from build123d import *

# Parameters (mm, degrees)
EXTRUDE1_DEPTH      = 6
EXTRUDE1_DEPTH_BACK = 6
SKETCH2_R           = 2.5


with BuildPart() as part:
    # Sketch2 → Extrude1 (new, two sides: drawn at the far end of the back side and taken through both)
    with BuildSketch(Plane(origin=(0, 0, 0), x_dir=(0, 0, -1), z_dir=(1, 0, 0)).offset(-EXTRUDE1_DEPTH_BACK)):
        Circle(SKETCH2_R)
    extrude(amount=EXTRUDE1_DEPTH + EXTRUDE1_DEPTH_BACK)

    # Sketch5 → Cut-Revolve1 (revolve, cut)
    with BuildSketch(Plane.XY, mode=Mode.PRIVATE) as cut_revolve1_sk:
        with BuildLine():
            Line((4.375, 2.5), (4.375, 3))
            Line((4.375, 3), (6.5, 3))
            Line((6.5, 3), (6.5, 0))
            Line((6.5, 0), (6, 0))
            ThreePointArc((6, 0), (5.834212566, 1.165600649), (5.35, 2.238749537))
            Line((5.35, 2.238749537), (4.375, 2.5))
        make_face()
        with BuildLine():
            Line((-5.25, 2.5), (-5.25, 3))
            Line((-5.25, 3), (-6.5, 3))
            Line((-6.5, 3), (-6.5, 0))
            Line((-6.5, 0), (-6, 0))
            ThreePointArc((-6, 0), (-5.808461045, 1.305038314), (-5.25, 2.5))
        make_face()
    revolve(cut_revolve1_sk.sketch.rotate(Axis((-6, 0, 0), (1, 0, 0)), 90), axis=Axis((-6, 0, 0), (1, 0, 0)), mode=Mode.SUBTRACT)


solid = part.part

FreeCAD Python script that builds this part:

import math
import FreeCAD as App
import Part
import Sketcher

V = App.Vector
Q = App.Units.Quantity

doc = App.newDocument("Part")
body = doc.addObject("PartDesign::Body", "Body")

# Sketch on YZ plane
sketch1 = body.newObject("Sketcher::SketchObject", "Sketch")
sketch1.AttachmentSupport = (doc.getObject("YZ_Plane"), [""])
sketch1.MapMode = "FlatFace"
sketch1.addGeometry(Part.Circle(V(0, 0, 0), V(0, 0, 1), 2.5), False)
sketch1.addConstraint([
    Sketcher.Constraint("Coincident", 0, 3, -1, 1),
    Sketcher.Constraint("Diameter", 0, Q("5 mm")),
])
pad1 = body.newObject("PartDesign::Pad", "Pad")
pad1.Profile = sketch1
pad1.Type = "TwoLengths"
pad1.Length = 6
pad1.Length2 = 6

# Sketch on XY plane
sketch2 = body.newObject("Sketcher::SketchObject", "Sketch001")
sketch2.AttachmentSupport = (doc.getObject("XY_Plane"), [""])
sketch2.MapMode = "FlatFace"
sketch2.addGeometry([
    Part.LineSegment(V(4.4, 3, 0), V(4.4, 2.5, 0)),  # 0
    Part.LineSegment(V(4.4, 2.5, 0), V(5.3, 2.2, 0)),  # 1
    Part.ArcOfCircle(Part.Circle(V(1.8, 0, 0), V(0, 0, 1), 4.2), math.radians(0), math.radians(32)),  # 2
    Part.LineSegment(V(6, 0, 0), V(6.5, 0, 0)),  # 3
    Part.LineSegment(V(6.5, 0, 0), V(6.5, 3, 0)),  # 4
    Part.LineSegment(V(6.5, 3, 0), V(4.4, 3, 0)),  # 5
    Part.LineSegment(V(-5.2, 2.5, 0), V(-5.2, 3, 0)),  # 6
    Part.LineSegment(V(-5.2, 3, 0), V(-6.5, 3, 0)),  # 7
    Part.LineSegment(V(-6.5, 3, 0), V(-6.5, 0, 0)),  # 8
    Part.LineSegment(V(-6.5, 0, 0), V(-6, 0, 0)),  # 9
    Part.ArcOfCircle(Part.Circle(V(-1.5, 0, 0), V(0, 0, 1), 4.5), math.radians(147), math.radians(180)),  # 10
], False)
sketch2.addConstraint([
    Sketcher.Constraint("Coincident", 0, 2, 1, 1),
    Sketcher.Constraint("Coincident", 1, 2, 2, 2),
    Sketcher.Constraint("Coincident", 2, 1, 3, 1),
    Sketcher.Constraint("Coincident", 3, 2, 4, 1),
    Sketcher.Constraint("Coincident", 4, 2, 5, 1),
    Sketcher.Constraint("Coincident", 5, 2, 0, 1),
    Sketcher.Constraint("Coincident", 6, 2, 7, 1),
    Sketcher.Constraint("Coincident", 7, 2, 8, 1),
    Sketcher.Constraint("Coincident", 8, 2, 9, 1),
    Sketcher.Constraint("Coincident", 9, 2, 10, 2),
    Sketcher.Constraint("Coincident", 10, 1, 6, 1),
    Sketcher.Constraint("Vertical", 0),
    Sketcher.Constraint("Horizontal", 3),
    Sketcher.Constraint("Vertical", 4),
    Sketcher.Constraint("Horizontal", 5),
    Sketcher.Constraint("Vertical", 6),
    Sketcher.Constraint("Horizontal", 7),
    Sketcher.Constraint("Vertical", 8),
    Sketcher.Constraint("Horizontal", 9),
    Sketcher.Constraint("Symmetric", 3, 2, 8, 2, -1, 1),
    Sketcher.Constraint("Symmetric", 2, 1, 9, 2, -2),
    Sketcher.Constraint("PointOnObject", 2, 3, -1),
    Sketcher.Constraint("PointOnObject", 10, 3, -1),
    Sketcher.Constraint("Horizontal", 5, 2, 6, 2),
    Sketcher.Constraint("Horizontal", 0, 2, 10, 1),
    Sketcher.Constraint("Equal", 9, 0),
    Sketcher.Constraint("DistanceY", 4, 1, 4, 2, Q("3 mm")),
    Sketcher.Constraint("Angle", 1, Q("-15 deg")),
    Sketcher.Constraint("DistanceX", 3, 1, 3, 2, Q("0.5 mm")),
    Sketcher.Constraint("DistanceX", -1, 1, 2, 1, Q("6 mm")),
    Sketcher.Constraint("DistanceX", 7, 2, 7, 1, Q("1.25 mm")),
    Sketcher.Constraint("DistanceX", 6, 2, 1, 2, Q("10.6 mm")),
    Sketcher.Constraint("DistanceX", 5, 2, 5, 1, Q("2.125 mm")),
])
groove = body.newObject("PartDesign::Groove", "Groove")
groove.Profile = sketch2
groove.ReferenceAxis = (sketch2, ["H_Axis"])
groove.Angle = 360

doc.recompute()
